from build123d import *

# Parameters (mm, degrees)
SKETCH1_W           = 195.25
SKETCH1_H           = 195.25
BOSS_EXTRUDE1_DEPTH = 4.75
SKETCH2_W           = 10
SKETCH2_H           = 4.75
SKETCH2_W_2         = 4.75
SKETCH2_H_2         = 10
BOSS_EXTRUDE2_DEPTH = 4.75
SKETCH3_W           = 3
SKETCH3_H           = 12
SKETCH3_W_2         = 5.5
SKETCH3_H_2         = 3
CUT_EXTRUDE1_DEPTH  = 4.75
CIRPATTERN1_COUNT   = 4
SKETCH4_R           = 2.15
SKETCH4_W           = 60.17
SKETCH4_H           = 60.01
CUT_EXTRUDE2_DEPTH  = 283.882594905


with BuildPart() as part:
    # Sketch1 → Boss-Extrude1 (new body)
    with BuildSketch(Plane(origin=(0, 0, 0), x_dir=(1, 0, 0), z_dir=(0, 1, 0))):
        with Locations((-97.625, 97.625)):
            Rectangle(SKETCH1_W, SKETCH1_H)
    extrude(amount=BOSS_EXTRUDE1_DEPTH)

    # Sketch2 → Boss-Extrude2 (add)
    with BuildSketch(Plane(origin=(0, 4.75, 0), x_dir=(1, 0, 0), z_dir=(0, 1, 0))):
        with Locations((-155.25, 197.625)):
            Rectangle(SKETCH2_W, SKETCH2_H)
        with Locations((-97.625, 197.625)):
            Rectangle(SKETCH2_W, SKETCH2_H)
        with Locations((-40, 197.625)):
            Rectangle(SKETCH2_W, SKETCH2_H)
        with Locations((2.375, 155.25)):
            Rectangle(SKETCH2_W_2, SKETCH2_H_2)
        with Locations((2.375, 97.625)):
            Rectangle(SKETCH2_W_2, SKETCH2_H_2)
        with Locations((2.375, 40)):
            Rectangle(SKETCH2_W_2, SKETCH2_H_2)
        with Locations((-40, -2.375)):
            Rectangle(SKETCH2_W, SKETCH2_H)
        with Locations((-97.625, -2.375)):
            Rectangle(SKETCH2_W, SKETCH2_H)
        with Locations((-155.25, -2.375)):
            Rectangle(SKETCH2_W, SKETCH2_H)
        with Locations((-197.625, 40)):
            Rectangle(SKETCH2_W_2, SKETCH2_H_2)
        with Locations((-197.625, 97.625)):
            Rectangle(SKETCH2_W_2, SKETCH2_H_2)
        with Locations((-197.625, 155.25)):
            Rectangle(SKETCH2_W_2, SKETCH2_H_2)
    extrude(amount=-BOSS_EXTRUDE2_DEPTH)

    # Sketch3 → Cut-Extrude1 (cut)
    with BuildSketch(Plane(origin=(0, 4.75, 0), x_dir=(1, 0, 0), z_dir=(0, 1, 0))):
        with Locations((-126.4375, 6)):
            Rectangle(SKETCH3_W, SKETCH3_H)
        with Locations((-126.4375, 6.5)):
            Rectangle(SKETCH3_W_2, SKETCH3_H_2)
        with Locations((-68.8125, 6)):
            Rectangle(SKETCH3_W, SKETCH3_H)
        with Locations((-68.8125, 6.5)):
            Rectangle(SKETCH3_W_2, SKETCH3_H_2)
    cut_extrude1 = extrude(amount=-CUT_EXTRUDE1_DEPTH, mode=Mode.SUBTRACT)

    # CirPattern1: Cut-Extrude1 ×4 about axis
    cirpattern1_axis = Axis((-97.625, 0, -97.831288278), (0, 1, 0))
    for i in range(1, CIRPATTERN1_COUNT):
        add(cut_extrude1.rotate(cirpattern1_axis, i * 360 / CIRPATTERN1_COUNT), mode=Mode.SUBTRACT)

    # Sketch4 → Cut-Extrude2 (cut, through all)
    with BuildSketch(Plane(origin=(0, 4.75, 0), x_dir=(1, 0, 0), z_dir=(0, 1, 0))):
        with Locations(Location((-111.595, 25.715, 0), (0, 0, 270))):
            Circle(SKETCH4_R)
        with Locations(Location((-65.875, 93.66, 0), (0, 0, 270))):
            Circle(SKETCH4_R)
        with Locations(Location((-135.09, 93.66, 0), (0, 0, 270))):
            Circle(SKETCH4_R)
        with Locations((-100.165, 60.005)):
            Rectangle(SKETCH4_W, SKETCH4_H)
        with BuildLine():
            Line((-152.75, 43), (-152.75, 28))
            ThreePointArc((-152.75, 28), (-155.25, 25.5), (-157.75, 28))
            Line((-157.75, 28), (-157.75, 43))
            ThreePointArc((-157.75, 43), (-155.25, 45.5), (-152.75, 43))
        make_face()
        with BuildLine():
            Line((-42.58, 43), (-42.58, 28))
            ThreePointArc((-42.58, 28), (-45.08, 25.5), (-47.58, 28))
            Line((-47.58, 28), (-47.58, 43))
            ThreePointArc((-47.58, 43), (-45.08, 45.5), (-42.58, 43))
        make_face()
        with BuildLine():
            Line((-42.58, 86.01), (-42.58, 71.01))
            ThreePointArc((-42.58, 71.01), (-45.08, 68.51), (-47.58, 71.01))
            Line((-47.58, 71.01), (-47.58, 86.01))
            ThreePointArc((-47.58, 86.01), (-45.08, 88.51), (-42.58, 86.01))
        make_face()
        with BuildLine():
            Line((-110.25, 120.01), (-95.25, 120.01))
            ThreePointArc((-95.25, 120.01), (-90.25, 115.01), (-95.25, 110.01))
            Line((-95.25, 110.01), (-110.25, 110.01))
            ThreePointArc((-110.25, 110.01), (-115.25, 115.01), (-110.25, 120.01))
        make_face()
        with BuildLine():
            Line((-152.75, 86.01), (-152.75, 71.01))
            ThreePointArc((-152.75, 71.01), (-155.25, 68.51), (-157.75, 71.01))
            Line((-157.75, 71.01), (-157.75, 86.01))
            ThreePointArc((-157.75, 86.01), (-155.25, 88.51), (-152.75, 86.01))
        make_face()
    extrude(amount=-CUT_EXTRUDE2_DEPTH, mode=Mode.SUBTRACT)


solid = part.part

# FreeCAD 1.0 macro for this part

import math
import FreeCAD as App
import Part
import Sketcher
Q = App.Units.Quantity


def add_polygon(sketch, points):
    """Adds a closed chain of lines whose ends are joined by coincident constraints."""
    first, n = sketch.GeometryCount, len(points)
    for a, b in zip(points, points[1:] + points[:1]):
        sketch.addGeometry(Part.LineSegment(App.Vector(*a, 0), App.Vector(*b, 0)), False)
    for i in range(n):
        sketch.addConstraint(Sketcher.Constraint("Coincident", first + i, 2, first + (i + 1) % n, 1))

doc = App.newDocument("Part")
params = doc.addObject("Spreadsheet::Sheet", "Params")
for row, (alias, value) in enumerate([
    ("sketch1_width", "195.25 mm"),
    ("pad1_length", "4.75 mm"),
    ("sketch2_width", "10 mm"),
    ("sketch2_width2", "4.75 mm"),
    ("pad2_length", "4.75 mm"),
    ("sketch3_width", "3 mm"),
    ("sketch3_height", "5 mm"),
    ("sketch3_height2", "4 mm"),
    ("sketch3_width2", "1.25 mm"),
    ("pocket1_length", "4.75 mm"),
    ("sketch4_radius", "5 mm"),
    ("sketch4_diameter", "4.3 mm"),
    ("sketch4_radius2", "2.5 mm"),
    ("sketch4_width", "15 mm"),
    ("sketch4_width2", "60.17 mm"),
], start=1):
    params.set(f"A{row}", alias)
    params.set(f"B{row}", "=" + value)
    params.setAlias(f"B{row}", alias)

body = doc.addObject("PartDesign::Body", "Body")

sketch1 = doc.addObject("Sketcher::SketchObject", "Sketch")
body.addObject(sketch1)
sketch1.AttachmentSupport = (doc.XZ_Plane, [""])
sketch1.MapMode = "FlatFace"
add_polygon(sketch1, [(-195, -195), (-195, 0), (0, 0), (0, -195)])
sketch1.addConstraint([
    Sketcher.Constraint("Vertical", 0),
    Sketcher.Constraint("Horizontal", 1),
    Sketcher.Constraint("Vertical", 2),
    Sketcher.Constraint("Horizontal", 3),
    Sketcher.Constraint("Coincident", 1, 2, -1, 1),
    Sketcher.Constraint("Equal", 3, 0),
    Sketcher.Constraint("DistanceX", 1, 1, 1, 2, Q("195.25 mm")),
])
sketch1.setExpression("Constraints[10]", "Params.sketch1_width")
pad1 = doc.addObject("PartDesign::Pad", "Pad")
body.addObject(pad1)
pad1.Profile = sketch1
pad1.setExpression("Length", "Params.pad1_length")
pad1.Reversed = True

sketch2 = doc.addObject("Sketcher::SketchObject", "Sketch001")
body.addObject(sketch2)
sketch2.AttachmentSupport = (doc.XZ_Plane, [""])
sketch2.MapMode = "FlatFace"
sketch2.AttachmentOffset = App.Placement(App.Vector(0, 0, -4.75), App.Rotation())
add_polygon(sketch2, [(-160.2, -200), (-160.2, -195.2), (-150.2, -195.2), (-150.2, -200)])
add_polygon(sketch2, [(-102.6, -200), (-102.6, -195.2), (-92.6, -195.2), (-92.6, -200)])
add_polygon(sketch2, [(-45, -200), (-45, -195.2), (-35, -195.2), (-35, -200)])
add_polygon(sketch2, [(0, -160.2), (0, -150.2), (4.8, -150.2), (4.8, -160.2)])
add_polygon(sketch2, [(0, -102.6), (0, -92.6), (4.8, -92.6), (4.8, -102.6)])
add_polygon(sketch2, [(0, -45), (0, -35), (4.8, -35), (4.8, -45)])
add_polygon(sketch2, [(-45, 0), (-45, 4.8), (-35, 4.8), (-35, 0)])
add_polygon(sketch2, [(-102.6, 0), (-102.6, 4.8), (-92.6, 4.8), (-92.6, 0)])
add_polygon(sketch2, [(-160.2, 0), (-160.2, 4.8), (-150.2, 4.8), (-150.2, 0)])
add_polygon(sketch2, [(-200, -45), (-200, -35), (-195.2, -35), (-195.2, -45)])
add_polygon(sketch2, [(-200, -102.6), (-200, -92.6), (-195.2, -92.6), (-195.2, -102.6)])
add_polygon(sketch2, [(-200, -160.2), (-200, -150.2), (-195.2, -150.2), (-195.2, -160.2)])
sketch2.addConstraint([
    Sketcher.Constraint("Vertical", 0),
    Sketcher.Constraint("Horizontal", 1),
    Sketcher.Constraint("Vertical", 2),
    Sketcher.Constraint("Horizontal", 3),
    Sketcher.Constraint("Vertical", 4),
    Sketcher.Constraint("Horizontal", 5),
    Sketcher.Constraint("Vertical", 6),
    Sketcher.Constraint("Horizontal", 7),
    Sketcher.Constraint("Vertical", 8),
    Sketcher.Constraint("Horizontal", 9),
    Sketcher.Constraint("Vertical", 10),
    Sketcher.Constraint("Horizontal", 11),
    Sketcher.Constraint("Vertical", 12),
    Sketcher.Constraint("Horizontal", 13),
    Sketcher.Constraint("Vertical", 14),
    Sketcher.Constraint("Horizontal", 15),
    Sketcher.Constraint("Vertical", 16),
    Sketcher.Constraint("Horizontal", 17),
    Sketcher.Constraint("Vertical", 18),
    Sketcher.Constraint("Horizontal", 19),
    Sketcher.Constraint("Vertical", 20),
    Sketcher.Constraint("Horizontal", 21),
    Sketcher.Constraint("Vertical", 22),
    Sketcher.Constraint("Horizontal", 23),
    Sketcher.Constraint("Vertical", 24),
    Sketcher.Constraint("Horizontal", 25),
    Sketcher.Constraint("Vertical", 26),
    Sketcher.Constraint("Horizontal", 27),
    Sketcher.Constraint("Vertical", 28),
    Sketcher.Constraint("Horizontal", 29),
    Sketcher.Constraint("Vertical", 30),
    Sketcher.Constraint("Horizontal", 31),
    Sketcher.Constraint("Vertical", 32),
    Sketcher.Constraint("Horizontal", 33),
    Sketcher.Constraint("Vertical", 34),
    Sketcher.Constraint("Horizontal", 35),
    Sketcher.Constraint("Vertical", 36),
    Sketcher.Constraint("Horizontal", 37),
    Sketcher.Constraint("Vertical", 38),
    Sketcher.Constraint("Horizontal", 39),
    Sketcher.Constraint("Vertical", 40),
    Sketcher.Constraint("Horizontal", 41),
    Sketcher.Constraint("Vertical", 42),
    Sketcher.Constraint("Horizontal", 43),
    Sketcher.Constraint("Vertical", 44),
    Sketcher.Constraint("Horizontal", 45),
    Sketcher.Constraint("Vertical", 46),
    Sketcher.Constraint("Horizontal", 47),
    Sketcher.Constraint("PointOnObject", 12, 2, -2),
    Sketcher.Constraint("PointOnObject", 16, 2, -2),
    Sketcher.Constraint("PointOnObject", 20, 2, -2),
    Sketcher.Constraint("PointOnObject", 26, 2, -1),
    Sketcher.Constraint("PointOnObject", 30, 2, -1),
    Sketcher.Constraint("PointOnObject", 34, 2, -1),
    Sketcher.Constraint("Horizontal", 1, 2, 4, 2),
    Sketcher.Constraint("Horizontal", 3, 2, 6, 2),
    Sketcher.Constraint("Horizontal", 5, 2, 8, 2),
    Sketcher.Constraint("Horizontal", 7, 2, 10, 2),
    Sketcher.Constraint("Horizontal", 25, 2, 28, 2),
    Sketcher.Constraint("Horizontal", 29, 2, 32, 2),
    Sketcher.Constraint("Horizontal", 21, 2, 36, 2),
    Sketcher.Constraint("Horizontal", 23, 2, 38, 2),
    Sketcher.Constraint("Horizontal", 17, 2, 40, 2),
    Sketcher.Constraint("Horizontal", 19, 2, 42, 2),
    Sketcher.Constraint("Horizontal", 13, 2, 44, 2),
    Sketcher.Constraint("Horizontal", 15, 2, 46, 2),
    Sketcher.Constraint("Vertical", 14, 2, 17, 2),
    Sketcher.Constraint("Vertical", 18, 2, 21, 2),
    Sketcher.Constraint("Vertical", 11, 2, 24, 2),
    Sketcher.Constraint("Vertical", 10, 2, 25, 2),
    Sketcher.Constraint("Vertical", 7, 2, 28, 2),
    Sketcher.Constraint("Vertical", 6, 2, 29, 2),
    Sketcher.Constraint("Vertical", 3, 2, 32, 2),
    Sketcher.Constraint("Vertical", 2, 2, 33, 2),
    Sketcher.Constraint("Vertical", 39, 2, 40, 2),
    Sketcher.Constraint("Vertical", 38, 2, 41, 2),
    Sketcher.Constraint("Vertical", 43, 2, 44, 2),
    Sketcher.Constraint("Vertical", 42, 2, 45, 2),
    Sketcher.Constraint("Equal", 3, 5),
    Sketcher.Constraint("Equal", 7, 9),
    Sketcher.Constraint("Equal", 23, 37),
    Sketcher.Constraint("Equal", 47, 0),
    Sketcher.Constraint("Equal", 35, 12),
    Sketcher.Constraint("Equal", 14, 16),
    Sketcher.Constraint("Equal", 18, 20),
    Sketcher.Constraint("Equal", 10, 24),
    Sketcher.Constraint("DistanceX", 1, 1, 1, 2, Q("10 mm")),
    Sketcher.Constraint("DistanceY", 2, 2, -1, 1, Q("200 mm")),
    Sketcher.Constraint("DistanceX", 8, 2, -1, 1, Q("45 mm")),
    Sketcher.Constraint("DistanceY", 20, 2, -1, 1, Q("35 mm")),
    Sketcher.Constraint("DistanceX", 36, 2, -1, 1, Q("200 mm")),
    Sketcher.Constraint("DistanceY", 9, 2, 12, 2, Q("45 mm")),
    Sketcher.Constraint("DistanceX", 37, 2, 35, 2, Q("35 mm")),
    Sketcher.Constraint("DistanceX", 13, 1, 13, 2, Q("4.75 mm")),
    Sketcher.Constraint("DistanceX", 4, 2, -1, 1, Q("102.625 mm")),
    Sketcher.Constraint("DistanceY", 16, 2, -1, 1, Q("92.625 mm")),
])
sketch2.setExpression("Constraints[134]", "Params.sketch2_width")
sketch2.setExpression("Constraints[141]", "Params.sketch2_width2")
pad2 = doc.addObject("PartDesign::Pad", "Pad001")
body.addObject(pad2)
pad2.Profile = sketch2
pad2.setExpression("Length", "Params.pad2_length")

sketch3 = doc.addObject("Sketcher::SketchObject", "Sketch002")
body.addObject(sketch3)
sketch3.AttachmentSupport = (doc.XZ_Plane, [""])
sketch3.MapMode = "FlatFace"
sketch3.AttachmentOffset = App.Placement(App.Vector(0, 0, -4.75), App.Rotation())
add_polygon(sketch3, [(-127.9, -5), (-127.9, 0), (-124.9, 0), (-124.9, -5), (-123.7, -5), (-123.7, -8), (-124.9, -8), (-124.9, -12), (-127.9, -12), (-127.9, -8), (-129.2, -8), (-129.2, -5)])
add_polygon(sketch3, [(-70.3, -5), (-70.3, 0), (-67.3, 0), (-67.3, -5), (-66.1, -5), (-66.1, -8), (-67.3, -8), (-67.3, -12), (-70.3, -12), (-70.3, -8), (-71.6, -8), (-71.6, -5)])
sketch3.addConstraint([
    Sketcher.Constraint("Vertical", 0),
    Sketcher.Constraint("Horizontal", 1),
    Sketcher.Constraint("Vertical", 2),
    Sketcher.Constraint("Horizontal", 3),
    Sketcher.Constraint("Vertical", 4),
    Sketcher.Constraint("Horizontal", 5),
    Sketcher.Constraint("Vertical", 6),
    Sketcher.Constraint("Horizontal", 7),
    Sketcher.Constraint("Vertical", 8),
    Sketcher.Constraint("Horizontal", 9),
    Sketcher.Constraint("Vertical", 10),
    Sketcher.Constraint("Horizontal", 11),
    Sketcher.Constraint("Vertical", 12),
    Sketcher.Constraint("Horizontal", 13),
    Sketcher.Constraint("Vertical", 14),
    Sketcher.Constraint("Horizontal", 15),
    Sketcher.Constraint("Vertical", 16),
    Sketcher.Constraint("Horizontal", 17),
    Sketcher.Constraint("Vertical", 18),
    Sketcher.Constraint("Horizontal", 19),
    Sketcher.Constraint("Vertical", 20),
    Sketcher.Constraint("Horizontal", 21),
    Sketcher.Constraint("Vertical", 22),
    Sketcher.Constraint("Horizontal", 23),
    Sketcher.Constraint("PointOnObject", 0, 2, -1),
    Sketcher.Constraint("PointOnObject", 12, 2, -1),
    Sketcher.Constraint("Horizontal", 5, 2, 8, 2),
    Sketcher.Constraint("Horizontal", 3, 2, 10, 2),
    Sketcher.Constraint("Horizontal", 11, 2, 14, 2),
    Sketcher.Constraint("Horizontal", 9, 2, 16, 2),
    Sketcher.Constraint("Horizontal", 7, 2, 18, 2),
    Sketcher.Constraint("Horizontal", 17, 2, 20, 2),
    Sketcher.Constraint("Horizontal", 15, 2, 22, 2),
    Sketcher.Constraint("Vertical", 2, 2, 5, 2),
    Sketcher.Constraint("Vertical", 0, 2, 7, 2),
    Sketcher.Constraint("Vertical", 14, 2, 17, 2),
    Sketcher.Constraint("Vertical", 12, 2, 19, 2),
    Sketcher.Constraint("Equal", 5, 9),
    Sketcher.Constraint("Equal", 7, 13),
    Sketcher.Constraint("Equal", 11, 15),
    Sketcher.Constraint("Equal", 17, 21),
    Sketcher.Constraint("Equal", 19, 4),
    Sketcher.Constraint("DistanceX", 1, 1, 1, 2, Q("3 mm")),
    Sketcher.Constraint("DistanceY", 0, 1, 0, 2, Q("5 mm")),
    Sketcher.Constraint("DistanceY", 6, 2, 6, 1, Q("4 mm")),
    Sketcher.Constraint("DistanceX", 3, 1, 3, 2, Q("1.25 mm")),
    Sketcher.Constraint("DistanceX", 3, 2, 12, 2, Q("53.375 mm")),
    Sketcher.Constraint("DistanceX", 0, 2, -1, 1, Q("127.9375 mm")),
])
sketch3.setExpression("Constraints[66]", "Params.sketch3_width")
sketch3.setExpression("Constraints[67]", "Params.sketch3_height")
sketch3.setExpression("Constraints[68]", "Params.sketch3_height2")
sketch3.setExpression("Constraints[69]", "Params.sketch3_width2")
pocket1 = doc.addObject("PartDesign::Pocket", "Pocket")
body.addObject(pocket1)
pocket1.Profile = sketch3
pocket1.setExpression("Length", "Params.pocket1_length")
pocket1.Reversed = True
doc.recompute()

datumline = doc.addObject("PartDesign::Line", "DatumLine")
body.addObject(datumline)
datumline.Placement = App.Placement(App.Vector(-97.625, 0, -97.831288), App.Rotation(App.Vector(0, 0, 1), App.Vector(0, 1, 0)))
polarpattern = doc.addObject("PartDesign::PolarPattern", "PolarPattern")
body.addObject(polarpattern)
polarpattern.Originals = [pocket1]
polarpattern.Axis = (datumline, [""])
polarpattern.Angle = 360
polarpattern.Occurrences = 4
body.Tip = polarpattern

sketch4 = doc.addObject("Sketcher::SketchObject", "Sketch003")
body.addObject(sketch4)
sketch4.AttachmentSupport = (doc.XZ_Plane, [""])
sketch4.MapMode = "FlatFace"
sketch4.AttachmentOffset = App.Placement(App.Vector(0, 0, -4.75), App.Rotation())
sketch4.addGeometry(Part.Circle(App.Vector(-111.6, -25.7, 0), App.Vector(0, 0, 1), 2.1), False)
sketch4.addGeometry(Part.Circle(App.Vector(-65.9, -93.7, 0), App.Vector(0, 0, 1), 2.1), False)
sketch4.addGeometry(Part.Circle(App.Vector(-135.1, -93.7, 0), App.Vector(0, 0, 1), 2.1), False)
add_polygon(sketch4, [(-130.2, -90), (-130.2, -30), (-70.1, -30), (-70.1, -90)])
sketch4.addGeometry(Part.LineSegment(App.Vector(-152.8, -28, 0), App.Vector(-152.8, -43, 0)), False)
sketch4.addGeometry(Part.ArcOfCircle(Part.Circle(App.Vector(-155.2, -43, 0), App.Vector(0, 0, 1), 2.5), math.radians(180), math.radians(360)), False)
sketch4.addGeometry(Part.LineSegment(App.Vector(-157.8, -43, 0), App.Vector(-157.8, -28, 0)), False)
sketch4.addGeometry(Part.ArcOfCircle(Part.Circle(App.Vector(-155.2, -28, 0), App.Vector(0, 0, 1), 2.5), math.radians(0), math.radians(180)), False)
sketch4.addGeometry(Part.LineSegment(App.Vector(-42.6, -28, 0), App.Vector(-42.6, -43, 0)), False)
sketch4.addGeometry(Part.ArcOfCircle(Part.Circle(App.Vector(-45.1, -43, 0), App.Vector(0, 0, 1), 2.5), math.radians(180), math.radians(360)), False)
sketch4.addGeometry(Part.LineSegment(App.Vector(-47.6, -43, 0), App.Vector(-47.6, -28, 0)), False)
sketch4.addGeometry(Part.ArcOfCircle(Part.Circle(App.Vector(-45.1, -28, 0), App.Vector(0, 0, 1), 2.5), math.radians(0), math.radians(180)), False)
sketch4.addGeometry(Part.LineSegment(App.Vector(-42.6, -71, 0), App.Vector(-42.6, -86, 0)), False)
sketch4.addGeometry(Part.ArcOfCircle(Part.Circle(App.Vector(-45.1, -86, 0), App.Vector(0, 0, 1), 2.5), math.radians(180), math.radians(360)), False)
sketch4.addGeometry(Part.LineSegment(App.Vector(-47.6, -86, 0), App.Vector(-47.6, -71, 0)), False)
sketch4.addGeometry(Part.ArcOfCircle(Part.Circle(App.Vector(-45.1, -71, 0), App.Vector(0, 0, 1), 2.5), math.radians(0), math.radians(180)), False)
sketch4.addGeometry(Part.LineSegment(App.Vector(-95.2, -120, 0), App.Vector(-110.2, -120, 0)), False)
sketch4.addGeometry(Part.ArcOfCircle(Part.Circle(App.Vector(-110.2, -115, 0), App.Vector(0, 0, 1), 5), math.radians(90), math.radians(270)), False)
sketch4.addGeometry(Part.LineSegment(App.Vector(-110.2, -110, 0), App.Vector(-95.2, -110, 0)), False)
sketch4.addGeometry(Part.ArcOfCircle(Part.Circle(App.Vector(-95.2, -115, 0), App.Vector(0, 0, 1), 5), math.radians(-90), math.radians(90)), False)
sketch4.addGeometry(Part.LineSegment(App.Vector(-152.8, -71, 0), App.Vector(-152.8, -86, 0)), False)
sketch4.addGeometry(Part.ArcOfCircle(Part.Circle(App.Vector(-155.2, -86, 0), App.Vector(0, 0, 1), 2.5), math.radians(180), math.radians(360)), False)
sketch4.addGeometry(Part.LineSegment(App.Vector(-157.8, -86, 0), App.Vector(-157.8, -71, 0)), False)
sketch4.addGeometry(Part.ArcOfCircle(Part.Circle(App.Vector(-155.2, -71, 0), App.Vector(0, 0, 1), 2.5), math.radians(0), math.radians(180)), False)
sketch4.addConstraint([
    Sketcher.Constraint("Tangent", 7, 2, 8, 2),
    Sketcher.Constraint("Tangent", 8, 1, 9, 1),
    Sketcher.Constraint("Tangent", 9, 2, 10, 2),
    Sketcher.Constraint("Tangent", 10, 1, 7, 1),
    Sketcher.Constraint("Tangent", 11, 2, 12, 2),
    Sketcher.Constraint("Tangent", 12, 1, 13, 1),
    Sketcher.Constraint("Tangent", 13, 2, 14, 2),
    Sketcher.Constraint("Tangent", 14, 1, 11, 1),
    Sketcher.Constraint("Tangent", 15, 2, 16, 2),
    Sketcher.Constraint("Tangent", 16, 1, 17, 1),
    Sketcher.Constraint("Tangent", 17, 2, 18, 2),
    Sketcher.Constraint("Tangent", 18, 1, 15, 1),
    Sketcher.Constraint("Tangent", 19, 2, 20, 2),
    Sketcher.Constraint("Tangent", 20, 1, 21, 1),
    Sketcher.Constraint("Tangent", 21, 2, 22, 2),
    Sketcher.Constraint("Tangent", 22, 1, 19, 1),
    Sketcher.Constraint("Tangent", 23, 2, 24, 2),
    Sketcher.Constraint("Tangent", 24, 1, 25, 1),
    Sketcher.Constraint("Tangent", 25, 2, 26, 2),
    Sketcher.Constraint("Tangent", 26, 1, 23, 1),
    Sketcher.Constraint("Vertical", 3),
    Sketcher.Constraint("Horizontal", 4),
    Sketcher.Constraint("Vertical", 5),
    Sketcher.Constraint("Horizontal", 6),
    Sketcher.Constraint("Vertical", 7),
    Sketcher.Constraint("Vertical", 9),
    Sketcher.Constraint("Vertical", 11),
    Sketcher.Constraint("Vertical", 13),
    Sketcher.Constraint("Vertical", 15),
    Sketcher.Constraint("Vertical", 17),
    Sketcher.Constraint("Horizontal", 19),
    Sketcher.Constraint("Horizontal", 21),
    Sketcher.Constraint("Vertical", 23),
    Sketcher.Constraint("Vertical", 25),
    Sketcher.Constraint("Equal", 0, 1),
    Sketcher.Constraint("Equal", 1, 2),
    Sketcher.Constraint("Equal", 10, 12),
    Sketcher.Constraint("Equal", 14, 16),
    Sketcher.Constraint("Equal", 18, 24),
    Sketcher.Constraint("Horizontal", 1, 3, 2, 3),
    Sketcher.Constraint("Horizontal", 8, 3, 12, 3),
    Sketcher.Constraint("Horizontal", 10, 3, 14, 3),
    Sketcher.Constraint("Horizontal", 16, 3, 24, 3),
    Sketcher.Constraint("Horizontal", 18, 3, 26, 3),
    Sketcher.Constraint("Vertical", 14, 3, 16, 3),
    Sketcher.Constraint("Vertical", 10, 3, 24, 3),
    Sketcher.Constraint("Equal", 21, 7),
    Sketcher.Constraint("Equal", 13, 15),
    Sketcher.Constraint("Radius", 20, Q("5 mm")),
    Sketcher.Constraint("Diameter", 0, Q("4.3 mm")),
    Sketcher.Constraint("Radius", 8, Q("2.5 mm")),
    Sketcher.Constraint("DistanceX", 19, 2, 19, 1, Q("15 mm")),
    Sketcher.Constraint("DistanceY", 8, 3, -1, 1, Q("43 mm")),
    Sketcher.Constraint("DistanceY", 3, 2, -1, 1, Q("30 mm")),
    Sketcher.Constraint("DistanceY", 20, 3, 16, 3, Q("29 mm")),
    Sketcher.Constraint("DistanceX", 8, 3, 20, 3, Q("45 mm")),
    Sketcher.Constraint("DistanceX", 10, 3, 3, 2, Q("25 mm")),
    Sketcher.Constraint("DistanceX", 4, 2, 14, 3, Q("25 mm")),
    Sketcher.Constraint("DistanceY", 5, 2, 16, 3, Q("4 mm")),
    Sketcher.Constraint("DistanceX", 4, 1, 4, 2, Q("60.17 mm")),
    Sketcher.Constraint("DistanceY", 3, 1, 3, 2, Q("60.01 mm")),
    Sketcher.Constraint("DistanceY", 1, 3, -1, 1, Q("93.66 mm")),
    Sketcher.Constraint("DistanceX", 2, 3, -1, 1, Q("135.09 mm")),
    Sketcher.Constraint("DistanceX", 8, 3, -1, 1, Q("155.25 mm")),
    Sketcher.Constraint("DistanceX", 0, 3, 1, 3, Q("45.72 mm")),
    Sketcher.Constraint("DistanceX", 0, 3, -1, 1, Q("111.595 mm")),
    Sketcher.Constraint("DistanceY", 0, 3, -1, 1, Q("25.715 mm")),
])
sketch4.setExpression("Constraints[52]", "Params.sketch4_radius")
sketch4.setExpression("Constraints[53]", "Params.sketch4_diameter")
sketch4.setExpression("Constraints[54]", "Params.sketch4_radius2")
sketch4.setExpression("Constraints[55]", "Params.sketch4_width")
sketch4.setExpression("Constraints[63]", "Params.sketch4_width2")
pocket2 = doc.addObject("PartDesign::Pocket", "Pocket001")
body.addObject(pocket2)
pocket2.Profile = sketch4
pocket2.Type = "ThroughAll"
pocket2.Reversed = True

doc.recompute()
